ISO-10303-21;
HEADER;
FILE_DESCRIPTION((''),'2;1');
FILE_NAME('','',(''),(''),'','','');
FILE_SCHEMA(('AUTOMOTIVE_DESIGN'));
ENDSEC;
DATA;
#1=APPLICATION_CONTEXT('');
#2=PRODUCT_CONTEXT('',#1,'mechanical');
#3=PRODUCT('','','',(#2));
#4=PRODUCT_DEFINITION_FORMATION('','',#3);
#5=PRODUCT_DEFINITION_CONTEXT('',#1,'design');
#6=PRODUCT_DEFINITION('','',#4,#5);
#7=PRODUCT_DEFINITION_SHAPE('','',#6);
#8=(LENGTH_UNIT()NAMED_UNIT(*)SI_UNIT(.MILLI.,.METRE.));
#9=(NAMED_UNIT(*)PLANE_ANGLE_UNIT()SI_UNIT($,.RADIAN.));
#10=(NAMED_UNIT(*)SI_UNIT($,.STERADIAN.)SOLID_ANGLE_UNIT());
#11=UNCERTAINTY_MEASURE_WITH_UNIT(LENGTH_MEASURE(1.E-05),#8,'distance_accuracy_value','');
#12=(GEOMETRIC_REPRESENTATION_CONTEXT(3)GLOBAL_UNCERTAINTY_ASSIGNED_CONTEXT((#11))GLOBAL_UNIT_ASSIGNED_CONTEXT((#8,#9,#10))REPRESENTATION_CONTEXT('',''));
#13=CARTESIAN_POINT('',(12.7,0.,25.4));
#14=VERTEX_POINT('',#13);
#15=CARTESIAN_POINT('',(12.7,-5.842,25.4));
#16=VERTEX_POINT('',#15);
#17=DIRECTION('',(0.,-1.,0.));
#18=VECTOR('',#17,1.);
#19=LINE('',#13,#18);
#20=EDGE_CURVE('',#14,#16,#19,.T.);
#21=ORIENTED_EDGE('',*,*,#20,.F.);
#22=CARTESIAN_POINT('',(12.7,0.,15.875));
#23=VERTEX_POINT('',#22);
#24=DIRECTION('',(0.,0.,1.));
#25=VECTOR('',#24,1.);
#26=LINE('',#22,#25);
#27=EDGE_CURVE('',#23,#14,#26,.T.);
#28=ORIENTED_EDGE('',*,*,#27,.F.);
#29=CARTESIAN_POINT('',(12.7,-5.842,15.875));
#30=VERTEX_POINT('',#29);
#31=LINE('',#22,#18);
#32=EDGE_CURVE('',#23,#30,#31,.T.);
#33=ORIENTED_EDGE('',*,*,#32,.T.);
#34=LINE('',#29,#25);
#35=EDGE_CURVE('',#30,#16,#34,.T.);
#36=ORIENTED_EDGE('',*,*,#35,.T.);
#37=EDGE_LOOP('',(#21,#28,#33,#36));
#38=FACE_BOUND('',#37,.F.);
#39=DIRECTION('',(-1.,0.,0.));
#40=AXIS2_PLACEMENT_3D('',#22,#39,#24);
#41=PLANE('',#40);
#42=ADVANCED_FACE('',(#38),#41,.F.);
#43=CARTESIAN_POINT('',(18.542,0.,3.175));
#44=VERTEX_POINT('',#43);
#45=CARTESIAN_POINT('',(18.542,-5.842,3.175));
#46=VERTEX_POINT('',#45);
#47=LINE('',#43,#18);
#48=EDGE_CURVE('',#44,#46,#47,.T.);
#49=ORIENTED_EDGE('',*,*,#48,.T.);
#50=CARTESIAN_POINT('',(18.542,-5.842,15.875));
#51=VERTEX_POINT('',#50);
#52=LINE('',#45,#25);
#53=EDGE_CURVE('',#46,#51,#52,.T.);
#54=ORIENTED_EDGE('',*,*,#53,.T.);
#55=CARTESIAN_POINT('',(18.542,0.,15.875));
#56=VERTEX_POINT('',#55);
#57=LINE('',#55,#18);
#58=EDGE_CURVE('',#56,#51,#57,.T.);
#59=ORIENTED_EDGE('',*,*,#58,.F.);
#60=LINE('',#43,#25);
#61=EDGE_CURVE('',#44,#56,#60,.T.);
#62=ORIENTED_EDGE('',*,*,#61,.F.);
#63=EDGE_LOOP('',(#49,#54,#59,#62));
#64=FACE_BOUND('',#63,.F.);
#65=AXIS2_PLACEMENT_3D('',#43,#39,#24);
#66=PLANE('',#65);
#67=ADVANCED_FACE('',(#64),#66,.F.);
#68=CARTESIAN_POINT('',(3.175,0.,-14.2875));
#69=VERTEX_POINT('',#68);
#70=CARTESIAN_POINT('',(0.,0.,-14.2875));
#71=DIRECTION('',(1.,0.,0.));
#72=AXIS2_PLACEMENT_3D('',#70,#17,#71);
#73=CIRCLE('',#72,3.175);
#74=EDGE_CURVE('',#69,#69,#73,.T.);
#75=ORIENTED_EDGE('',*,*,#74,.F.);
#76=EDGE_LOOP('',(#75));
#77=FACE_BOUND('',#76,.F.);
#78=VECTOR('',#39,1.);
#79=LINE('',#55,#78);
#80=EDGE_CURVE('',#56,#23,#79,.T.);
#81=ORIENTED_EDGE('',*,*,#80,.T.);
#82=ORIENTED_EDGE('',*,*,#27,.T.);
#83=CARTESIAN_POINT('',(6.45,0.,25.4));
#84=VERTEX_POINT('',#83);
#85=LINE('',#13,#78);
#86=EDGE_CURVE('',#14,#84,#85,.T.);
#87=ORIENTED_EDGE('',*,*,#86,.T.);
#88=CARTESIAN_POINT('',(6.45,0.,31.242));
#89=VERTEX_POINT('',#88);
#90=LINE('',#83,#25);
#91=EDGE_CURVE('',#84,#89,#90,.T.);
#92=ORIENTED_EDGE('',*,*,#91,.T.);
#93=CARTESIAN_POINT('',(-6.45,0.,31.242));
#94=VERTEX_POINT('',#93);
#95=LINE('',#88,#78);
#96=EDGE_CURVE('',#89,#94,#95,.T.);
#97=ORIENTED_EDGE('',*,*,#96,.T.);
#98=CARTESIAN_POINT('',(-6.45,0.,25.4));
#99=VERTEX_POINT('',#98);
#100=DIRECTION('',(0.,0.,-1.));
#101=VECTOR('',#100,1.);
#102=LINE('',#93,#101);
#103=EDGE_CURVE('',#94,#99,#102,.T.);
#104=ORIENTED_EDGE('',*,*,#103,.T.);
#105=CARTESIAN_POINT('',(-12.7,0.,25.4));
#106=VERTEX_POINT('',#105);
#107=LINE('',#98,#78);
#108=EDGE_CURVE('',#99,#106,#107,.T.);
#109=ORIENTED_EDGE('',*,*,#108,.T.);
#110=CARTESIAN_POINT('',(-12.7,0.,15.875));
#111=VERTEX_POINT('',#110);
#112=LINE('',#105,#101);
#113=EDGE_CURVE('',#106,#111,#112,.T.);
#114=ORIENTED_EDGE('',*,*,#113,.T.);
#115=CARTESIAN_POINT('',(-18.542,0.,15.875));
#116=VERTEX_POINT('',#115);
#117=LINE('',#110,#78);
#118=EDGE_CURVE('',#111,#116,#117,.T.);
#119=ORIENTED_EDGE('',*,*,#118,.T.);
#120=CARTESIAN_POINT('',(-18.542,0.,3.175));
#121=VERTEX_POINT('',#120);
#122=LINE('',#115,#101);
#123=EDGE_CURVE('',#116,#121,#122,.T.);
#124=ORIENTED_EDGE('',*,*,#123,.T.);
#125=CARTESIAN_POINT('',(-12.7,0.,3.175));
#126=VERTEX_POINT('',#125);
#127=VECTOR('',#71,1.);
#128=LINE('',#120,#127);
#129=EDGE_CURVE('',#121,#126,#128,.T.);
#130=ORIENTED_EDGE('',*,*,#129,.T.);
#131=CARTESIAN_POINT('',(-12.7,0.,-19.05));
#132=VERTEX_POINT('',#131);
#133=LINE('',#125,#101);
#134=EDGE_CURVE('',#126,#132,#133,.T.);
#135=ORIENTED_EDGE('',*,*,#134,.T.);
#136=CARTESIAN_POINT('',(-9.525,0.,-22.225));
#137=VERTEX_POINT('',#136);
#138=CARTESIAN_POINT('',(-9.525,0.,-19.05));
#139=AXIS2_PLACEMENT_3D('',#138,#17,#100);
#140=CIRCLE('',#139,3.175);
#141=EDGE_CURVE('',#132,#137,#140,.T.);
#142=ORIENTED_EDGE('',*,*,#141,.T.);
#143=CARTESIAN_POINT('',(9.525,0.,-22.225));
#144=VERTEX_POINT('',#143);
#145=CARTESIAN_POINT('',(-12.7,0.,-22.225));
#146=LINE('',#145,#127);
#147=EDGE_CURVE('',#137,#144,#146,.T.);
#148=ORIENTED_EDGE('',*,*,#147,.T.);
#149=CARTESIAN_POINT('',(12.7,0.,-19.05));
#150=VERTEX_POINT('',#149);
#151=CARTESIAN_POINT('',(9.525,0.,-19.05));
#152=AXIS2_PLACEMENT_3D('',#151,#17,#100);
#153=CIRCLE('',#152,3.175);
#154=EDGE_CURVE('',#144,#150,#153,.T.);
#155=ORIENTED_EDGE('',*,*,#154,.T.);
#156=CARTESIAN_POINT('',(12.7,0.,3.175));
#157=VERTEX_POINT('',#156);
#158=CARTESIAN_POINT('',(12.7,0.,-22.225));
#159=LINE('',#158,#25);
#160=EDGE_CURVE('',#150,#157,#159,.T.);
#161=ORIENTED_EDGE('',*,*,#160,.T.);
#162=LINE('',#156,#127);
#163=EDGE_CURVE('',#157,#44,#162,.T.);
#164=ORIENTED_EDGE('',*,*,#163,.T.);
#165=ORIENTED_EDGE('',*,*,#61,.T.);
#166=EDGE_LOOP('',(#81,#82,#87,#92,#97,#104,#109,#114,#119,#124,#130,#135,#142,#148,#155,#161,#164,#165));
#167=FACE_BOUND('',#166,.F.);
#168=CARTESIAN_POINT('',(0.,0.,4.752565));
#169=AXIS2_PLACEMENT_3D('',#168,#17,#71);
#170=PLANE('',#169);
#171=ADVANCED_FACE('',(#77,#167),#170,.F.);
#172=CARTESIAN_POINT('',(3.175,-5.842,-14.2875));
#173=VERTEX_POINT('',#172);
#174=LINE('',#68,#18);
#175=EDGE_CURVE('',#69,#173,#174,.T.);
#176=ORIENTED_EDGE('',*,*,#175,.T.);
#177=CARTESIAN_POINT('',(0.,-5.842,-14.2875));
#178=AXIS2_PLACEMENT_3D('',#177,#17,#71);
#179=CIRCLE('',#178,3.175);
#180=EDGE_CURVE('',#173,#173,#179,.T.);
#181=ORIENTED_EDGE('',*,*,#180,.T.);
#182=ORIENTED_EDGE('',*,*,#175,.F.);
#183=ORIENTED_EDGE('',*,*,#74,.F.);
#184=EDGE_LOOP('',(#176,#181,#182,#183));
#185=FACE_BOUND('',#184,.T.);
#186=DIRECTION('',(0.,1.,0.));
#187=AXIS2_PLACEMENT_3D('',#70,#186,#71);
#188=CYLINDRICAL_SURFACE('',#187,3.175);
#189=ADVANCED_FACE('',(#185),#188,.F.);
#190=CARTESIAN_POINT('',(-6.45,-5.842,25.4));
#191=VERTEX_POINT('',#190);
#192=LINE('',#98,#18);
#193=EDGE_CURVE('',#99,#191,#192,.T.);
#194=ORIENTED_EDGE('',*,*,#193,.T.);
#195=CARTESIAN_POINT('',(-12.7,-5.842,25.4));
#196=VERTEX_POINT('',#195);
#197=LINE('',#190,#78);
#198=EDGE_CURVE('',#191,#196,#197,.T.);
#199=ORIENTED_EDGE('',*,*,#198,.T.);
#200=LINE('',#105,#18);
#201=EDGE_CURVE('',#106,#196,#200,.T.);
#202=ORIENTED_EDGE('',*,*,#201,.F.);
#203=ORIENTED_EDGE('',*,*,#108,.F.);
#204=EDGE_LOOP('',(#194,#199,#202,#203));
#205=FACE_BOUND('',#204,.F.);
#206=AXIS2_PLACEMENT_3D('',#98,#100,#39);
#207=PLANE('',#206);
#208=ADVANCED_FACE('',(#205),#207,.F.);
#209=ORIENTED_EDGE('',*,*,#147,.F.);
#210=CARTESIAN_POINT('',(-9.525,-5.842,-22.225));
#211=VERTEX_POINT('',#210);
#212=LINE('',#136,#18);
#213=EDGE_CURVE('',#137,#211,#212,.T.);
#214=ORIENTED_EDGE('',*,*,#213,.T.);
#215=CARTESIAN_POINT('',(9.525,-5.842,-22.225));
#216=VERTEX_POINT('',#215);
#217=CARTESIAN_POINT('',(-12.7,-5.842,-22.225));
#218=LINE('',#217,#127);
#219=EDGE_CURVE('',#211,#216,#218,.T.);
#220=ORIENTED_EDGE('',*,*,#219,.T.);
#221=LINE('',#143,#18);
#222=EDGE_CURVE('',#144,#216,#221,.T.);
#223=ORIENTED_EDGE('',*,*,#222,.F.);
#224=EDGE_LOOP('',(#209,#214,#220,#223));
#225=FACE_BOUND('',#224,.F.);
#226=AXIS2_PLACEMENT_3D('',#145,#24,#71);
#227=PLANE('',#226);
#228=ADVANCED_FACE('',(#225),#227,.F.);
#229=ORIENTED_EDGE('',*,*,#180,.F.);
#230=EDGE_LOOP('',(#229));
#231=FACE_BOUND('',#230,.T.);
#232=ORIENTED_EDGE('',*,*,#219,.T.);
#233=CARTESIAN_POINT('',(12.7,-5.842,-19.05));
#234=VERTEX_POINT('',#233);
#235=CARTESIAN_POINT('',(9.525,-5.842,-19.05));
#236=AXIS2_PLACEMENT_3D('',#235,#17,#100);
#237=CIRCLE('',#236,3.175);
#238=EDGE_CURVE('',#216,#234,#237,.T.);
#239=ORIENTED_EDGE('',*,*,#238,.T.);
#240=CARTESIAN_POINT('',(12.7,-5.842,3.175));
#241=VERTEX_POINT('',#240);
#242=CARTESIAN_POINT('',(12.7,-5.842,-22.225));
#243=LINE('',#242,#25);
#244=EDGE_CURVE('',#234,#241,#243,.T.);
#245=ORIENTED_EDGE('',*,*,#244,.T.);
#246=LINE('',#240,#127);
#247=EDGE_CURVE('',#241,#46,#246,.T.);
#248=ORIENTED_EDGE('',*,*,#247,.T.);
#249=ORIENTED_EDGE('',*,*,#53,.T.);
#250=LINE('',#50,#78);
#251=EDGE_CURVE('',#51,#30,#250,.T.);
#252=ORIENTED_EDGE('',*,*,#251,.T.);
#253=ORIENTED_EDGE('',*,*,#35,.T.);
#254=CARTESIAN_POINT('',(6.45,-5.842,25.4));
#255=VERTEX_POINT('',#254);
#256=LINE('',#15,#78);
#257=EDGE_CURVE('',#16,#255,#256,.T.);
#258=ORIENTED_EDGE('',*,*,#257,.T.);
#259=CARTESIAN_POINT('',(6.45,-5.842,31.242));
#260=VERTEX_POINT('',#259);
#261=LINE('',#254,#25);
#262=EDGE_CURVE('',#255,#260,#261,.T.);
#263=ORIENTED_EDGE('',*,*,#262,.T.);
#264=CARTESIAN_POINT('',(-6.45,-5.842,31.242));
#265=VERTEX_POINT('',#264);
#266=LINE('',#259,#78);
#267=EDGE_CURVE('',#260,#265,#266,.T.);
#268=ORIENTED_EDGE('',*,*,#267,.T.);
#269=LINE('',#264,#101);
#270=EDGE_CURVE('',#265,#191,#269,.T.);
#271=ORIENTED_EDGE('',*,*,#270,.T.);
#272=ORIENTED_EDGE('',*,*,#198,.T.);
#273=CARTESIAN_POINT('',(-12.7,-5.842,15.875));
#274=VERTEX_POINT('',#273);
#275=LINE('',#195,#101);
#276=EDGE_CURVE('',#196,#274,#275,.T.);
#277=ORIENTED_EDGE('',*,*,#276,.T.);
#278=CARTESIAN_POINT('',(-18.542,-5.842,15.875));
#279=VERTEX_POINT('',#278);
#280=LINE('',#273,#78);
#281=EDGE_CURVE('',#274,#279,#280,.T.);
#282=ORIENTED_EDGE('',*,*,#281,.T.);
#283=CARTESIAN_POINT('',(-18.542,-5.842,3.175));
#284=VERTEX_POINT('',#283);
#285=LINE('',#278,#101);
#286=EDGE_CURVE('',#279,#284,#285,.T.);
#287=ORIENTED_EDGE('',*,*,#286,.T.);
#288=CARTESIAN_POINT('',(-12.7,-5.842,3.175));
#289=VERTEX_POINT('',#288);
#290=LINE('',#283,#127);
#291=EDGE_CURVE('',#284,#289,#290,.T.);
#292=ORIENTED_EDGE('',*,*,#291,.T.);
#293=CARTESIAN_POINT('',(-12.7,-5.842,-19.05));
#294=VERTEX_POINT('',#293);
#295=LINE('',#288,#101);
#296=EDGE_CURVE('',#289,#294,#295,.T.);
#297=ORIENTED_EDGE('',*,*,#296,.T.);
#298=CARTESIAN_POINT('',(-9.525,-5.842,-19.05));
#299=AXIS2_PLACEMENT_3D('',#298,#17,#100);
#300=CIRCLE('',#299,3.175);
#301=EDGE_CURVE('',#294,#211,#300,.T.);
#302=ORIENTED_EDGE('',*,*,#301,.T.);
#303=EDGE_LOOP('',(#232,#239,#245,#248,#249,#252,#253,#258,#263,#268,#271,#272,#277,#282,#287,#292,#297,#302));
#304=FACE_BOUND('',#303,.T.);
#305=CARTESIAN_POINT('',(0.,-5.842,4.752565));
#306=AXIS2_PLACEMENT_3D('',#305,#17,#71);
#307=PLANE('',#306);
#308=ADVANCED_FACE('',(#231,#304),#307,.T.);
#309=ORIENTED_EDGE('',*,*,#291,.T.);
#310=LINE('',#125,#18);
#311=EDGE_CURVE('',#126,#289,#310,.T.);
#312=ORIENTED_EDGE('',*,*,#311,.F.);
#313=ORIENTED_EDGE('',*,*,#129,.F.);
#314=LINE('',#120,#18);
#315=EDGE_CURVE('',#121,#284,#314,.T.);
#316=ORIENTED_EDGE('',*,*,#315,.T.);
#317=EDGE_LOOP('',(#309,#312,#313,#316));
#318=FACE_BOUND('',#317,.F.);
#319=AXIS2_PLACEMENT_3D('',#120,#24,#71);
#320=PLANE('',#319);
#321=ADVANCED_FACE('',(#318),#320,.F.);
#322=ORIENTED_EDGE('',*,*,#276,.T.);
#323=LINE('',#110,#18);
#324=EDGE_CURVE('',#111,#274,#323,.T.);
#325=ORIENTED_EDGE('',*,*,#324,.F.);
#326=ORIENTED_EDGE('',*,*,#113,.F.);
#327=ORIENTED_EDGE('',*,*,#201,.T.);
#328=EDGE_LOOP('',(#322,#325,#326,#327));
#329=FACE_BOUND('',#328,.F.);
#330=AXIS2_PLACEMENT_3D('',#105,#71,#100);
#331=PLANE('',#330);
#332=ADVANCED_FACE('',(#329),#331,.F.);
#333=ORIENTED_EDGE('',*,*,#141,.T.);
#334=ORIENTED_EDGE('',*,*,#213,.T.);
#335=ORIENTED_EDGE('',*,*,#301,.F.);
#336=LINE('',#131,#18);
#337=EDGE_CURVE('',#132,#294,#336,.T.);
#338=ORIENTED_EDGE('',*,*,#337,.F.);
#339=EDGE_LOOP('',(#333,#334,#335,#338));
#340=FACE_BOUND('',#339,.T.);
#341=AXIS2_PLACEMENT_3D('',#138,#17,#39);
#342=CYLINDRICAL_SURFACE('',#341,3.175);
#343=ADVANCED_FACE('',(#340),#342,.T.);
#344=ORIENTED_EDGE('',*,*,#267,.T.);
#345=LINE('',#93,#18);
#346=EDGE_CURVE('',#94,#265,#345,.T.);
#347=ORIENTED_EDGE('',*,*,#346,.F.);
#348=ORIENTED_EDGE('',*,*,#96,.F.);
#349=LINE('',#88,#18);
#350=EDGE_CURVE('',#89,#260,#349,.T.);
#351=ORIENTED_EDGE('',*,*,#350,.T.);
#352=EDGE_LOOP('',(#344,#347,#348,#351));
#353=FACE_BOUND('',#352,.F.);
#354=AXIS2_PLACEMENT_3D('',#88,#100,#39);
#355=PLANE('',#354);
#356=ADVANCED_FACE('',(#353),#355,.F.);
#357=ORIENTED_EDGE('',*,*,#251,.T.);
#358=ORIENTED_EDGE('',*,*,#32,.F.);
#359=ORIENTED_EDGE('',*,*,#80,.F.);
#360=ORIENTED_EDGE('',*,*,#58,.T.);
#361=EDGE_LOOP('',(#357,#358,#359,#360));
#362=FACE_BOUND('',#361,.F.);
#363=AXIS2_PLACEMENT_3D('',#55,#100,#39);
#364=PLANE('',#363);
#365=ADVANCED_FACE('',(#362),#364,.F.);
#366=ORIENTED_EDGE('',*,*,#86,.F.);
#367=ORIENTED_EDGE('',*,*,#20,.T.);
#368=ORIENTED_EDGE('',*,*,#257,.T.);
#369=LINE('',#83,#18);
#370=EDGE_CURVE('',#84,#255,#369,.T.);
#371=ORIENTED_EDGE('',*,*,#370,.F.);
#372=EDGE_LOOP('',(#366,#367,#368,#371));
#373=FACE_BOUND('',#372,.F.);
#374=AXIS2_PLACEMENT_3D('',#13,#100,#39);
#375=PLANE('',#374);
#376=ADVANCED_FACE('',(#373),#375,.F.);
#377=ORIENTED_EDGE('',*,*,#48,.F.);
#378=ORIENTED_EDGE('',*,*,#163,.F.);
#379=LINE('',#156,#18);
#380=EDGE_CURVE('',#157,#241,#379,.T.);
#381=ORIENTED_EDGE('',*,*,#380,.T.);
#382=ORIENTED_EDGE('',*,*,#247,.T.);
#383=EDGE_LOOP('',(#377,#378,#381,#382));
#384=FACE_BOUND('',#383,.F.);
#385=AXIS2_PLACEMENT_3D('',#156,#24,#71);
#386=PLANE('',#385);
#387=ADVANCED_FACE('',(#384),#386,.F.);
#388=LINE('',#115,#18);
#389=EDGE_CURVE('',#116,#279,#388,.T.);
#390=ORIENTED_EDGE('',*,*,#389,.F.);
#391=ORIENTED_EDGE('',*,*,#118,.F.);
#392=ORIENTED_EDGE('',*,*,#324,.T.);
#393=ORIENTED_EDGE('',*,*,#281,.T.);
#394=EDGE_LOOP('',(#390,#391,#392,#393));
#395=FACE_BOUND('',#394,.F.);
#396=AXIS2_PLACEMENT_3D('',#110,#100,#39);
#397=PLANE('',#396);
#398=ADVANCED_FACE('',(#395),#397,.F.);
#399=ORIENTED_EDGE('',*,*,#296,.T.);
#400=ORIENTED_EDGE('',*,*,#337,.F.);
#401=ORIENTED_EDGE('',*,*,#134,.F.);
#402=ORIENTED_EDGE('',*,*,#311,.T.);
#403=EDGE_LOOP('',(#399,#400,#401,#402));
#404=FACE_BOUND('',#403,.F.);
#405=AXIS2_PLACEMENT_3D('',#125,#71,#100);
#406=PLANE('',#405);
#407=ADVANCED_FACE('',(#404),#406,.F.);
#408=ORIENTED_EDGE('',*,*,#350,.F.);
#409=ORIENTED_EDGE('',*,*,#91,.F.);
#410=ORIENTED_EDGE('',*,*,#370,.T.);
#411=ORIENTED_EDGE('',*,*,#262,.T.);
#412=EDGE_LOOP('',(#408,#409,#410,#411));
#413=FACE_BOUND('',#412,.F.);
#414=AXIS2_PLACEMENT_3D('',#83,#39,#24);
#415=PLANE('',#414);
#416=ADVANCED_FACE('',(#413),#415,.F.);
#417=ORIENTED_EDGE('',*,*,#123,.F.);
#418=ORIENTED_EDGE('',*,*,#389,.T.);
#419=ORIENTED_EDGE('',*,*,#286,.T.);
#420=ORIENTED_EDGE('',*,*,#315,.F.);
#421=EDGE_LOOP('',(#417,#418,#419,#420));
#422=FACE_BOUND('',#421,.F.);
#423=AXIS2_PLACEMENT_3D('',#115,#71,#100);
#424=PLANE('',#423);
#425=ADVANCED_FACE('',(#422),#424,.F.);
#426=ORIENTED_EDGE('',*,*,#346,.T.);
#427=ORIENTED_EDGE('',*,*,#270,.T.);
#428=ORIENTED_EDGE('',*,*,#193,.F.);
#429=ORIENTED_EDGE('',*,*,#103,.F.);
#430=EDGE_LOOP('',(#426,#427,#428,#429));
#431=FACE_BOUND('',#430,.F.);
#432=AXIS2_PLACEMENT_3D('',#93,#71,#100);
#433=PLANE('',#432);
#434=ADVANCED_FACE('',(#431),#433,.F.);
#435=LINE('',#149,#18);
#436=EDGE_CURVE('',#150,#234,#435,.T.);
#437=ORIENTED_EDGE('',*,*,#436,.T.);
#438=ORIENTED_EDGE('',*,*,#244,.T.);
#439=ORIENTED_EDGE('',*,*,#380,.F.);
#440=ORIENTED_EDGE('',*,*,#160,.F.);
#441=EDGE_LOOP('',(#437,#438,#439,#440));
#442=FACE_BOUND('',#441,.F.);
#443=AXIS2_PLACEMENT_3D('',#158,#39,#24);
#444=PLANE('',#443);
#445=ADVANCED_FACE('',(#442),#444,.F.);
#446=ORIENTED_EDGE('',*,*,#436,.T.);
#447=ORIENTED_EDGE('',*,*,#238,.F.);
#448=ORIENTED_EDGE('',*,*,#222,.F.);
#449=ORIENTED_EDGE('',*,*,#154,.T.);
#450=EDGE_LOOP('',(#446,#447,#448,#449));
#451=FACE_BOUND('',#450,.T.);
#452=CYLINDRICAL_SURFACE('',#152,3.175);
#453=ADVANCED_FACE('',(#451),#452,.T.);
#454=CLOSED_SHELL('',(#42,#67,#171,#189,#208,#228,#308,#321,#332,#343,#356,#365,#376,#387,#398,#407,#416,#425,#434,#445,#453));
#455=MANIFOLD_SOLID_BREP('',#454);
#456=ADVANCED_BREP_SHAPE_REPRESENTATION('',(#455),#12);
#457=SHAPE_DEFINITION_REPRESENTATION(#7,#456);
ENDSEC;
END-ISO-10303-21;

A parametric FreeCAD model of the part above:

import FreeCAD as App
import Part
import Sketcher

V = App.Vector
Q = App.Units.Quantity


def edges_at(feature, points):
    """Names of the edges that pass closest to the given points."""
    edges = feature.Shape.Edges
    near = lambda p: min(range(len(edges)), key=lambda i: edges[i].distToShape(Part.Vertex(*p))[0])
    return sorted({f"Edge{near(p) + 1}" for p in points})

doc = App.newDocument("Part")
body = doc.addObject("PartDesign::Body", "Body")

sketch1 = doc.addObject("Sketcher::SketchObject", "Sketch")
body.addObject(sketch1)
sketch1.AttachmentSupport = (doc.XZ_Plane, [""])
sketch1.MapMode = "FlatFace"
sketch1.addGeometry([
    Part.LineSegment(V(-6.5, 25.4, 0), V(-12.7, 25.4, 0)),
    Part.LineSegment(V(-12.7, 25.4, 0), V(-12.7, 15.9, 0)),
    Part.LineSegment(V(-12.7, 15.9, 0), V(-18.5, 15.9, 0)),
    Part.LineSegment(V(-18.5, 15.9, 0), V(-18.5, 3.2, 0)),
    Part.LineSegment(V(-18.5, 3.2, 0), V(-12.7, 3.2, 0)),
    Part.LineSegment(V(-12.7, 3.2, 0), V(-12.7, -22.2, 0)),
    Part.LineSegment(V(-12.7, -22.2, 0), V(12.7, -22.2, 0)),
    Part.LineSegment(V(12.7, -22.2, 0), V(12.7, 3.2, 0)),
    Part.LineSegment(V(12.7, 3.2, 0), V(18.5, 3.2, 0)),
    Part.LineSegment(V(18.5, 3.2, 0), V(18.5, 15.9, 0)),
    Part.LineSegment(V(18.5, 15.9, 0), V(12.7, 15.9, 0)),
    Part.LineSegment(V(12.7, 15.9, 0), V(12.7, 25.4, 0)),
    Part.LineSegment(V(12.7, 25.4, 0), V(6.5, 25.4, 0)),
    Part.LineSegment(V(6.5, 25.4, 0), V(6.5, 31.2, 0)),
    Part.LineSegment(V(6.5, 31.2, 0), V(-6.5, 31.2, 0)),
    Part.LineSegment(V(-6.5, 31.2, 0), V(-6.5, 25.4, 0)),
    Part.Circle(V(0, -14.3, 0), V(0, 0, 1), 3.2),
], False)
sketch1.addConstraint([
    Sketcher.Constraint("Coincident", 0, 2, 1, 1),
    Sketcher.Constraint("Coincident", 1, 2, 2, 1),
    Sketcher.Constraint("Coincident", 2, 2, 3, 1),
    Sketcher.Constraint("Coincident", 3, 2, 4, 1),
    Sketcher.Constraint("Coincident", 4, 2, 5, 1),
    Sketcher.Constraint("Coincident", 5, 2, 6, 1),
    Sketcher.Constraint("Coincident", 6, 2, 7, 1),
    Sketcher.Constraint("Coincident", 7, 2, 8, 1),
    Sketcher.Constraint("Coincident", 8, 2, 9, 1),
    Sketcher.Constraint("Coincident", 9, 2, 10, 1),
    Sketcher.Constraint("Coincident", 10, 2, 11, 1),
    Sketcher.Constraint("Coincident", 11, 2, 12, 1),
    Sketcher.Constraint("Coincident", 12, 2, 13, 1),
    Sketcher.Constraint("Coincident", 13, 2, 14, 1),
    Sketcher.Constraint("Coincident", 14, 2, 15, 1),
    Sketcher.Constraint("Coincident", 15, 2, 0, 1),
    Sketcher.Constraint("Horizontal", 0),
    Sketcher.Constraint("Vertical", 1),
    Sketcher.Constraint("Horizontal", 2),
    Sketcher.Constraint("Vertical", 3),
    Sketcher.Constraint("Horizontal", 4),
    Sketcher.Constraint("Vertical", 5),
    Sketcher.Constraint("Horizontal", 6),
    Sketcher.Constraint("Vertical", 7),
    Sketcher.Constraint("Horizontal", 8),
    Sketcher.Constraint("Vertical", 9),
    Sketcher.Constraint("Horizontal", 10),
    Sketcher.Constraint("Vertical", 11),
    Sketcher.Constraint("Horizontal", 12),
    Sketcher.Constraint("Vertical", 13),
    Sketcher.Constraint("Horizontal", 14),
    Sketcher.Constraint("Vertical", 15),
    Sketcher.Constraint("Symmetric", 4, 2, 7, 2, -2),
    Sketcher.Constraint("Symmetric", 2, 2, 9, 2, -2),
    Sketcher.Constraint("Symmetric", 0, 2, 11, 2, -2),
    Sketcher.Constraint("PointOnObject", 16, 3, -2),
    Sketcher.Constraint("Vertical", 1, 2, 4, 2),
    Sketcher.Constraint("Equal", 0, 12),
    Sketcher.Constraint("Equal", 6, 5),
    Sketcher.Constraint("Equal", 10, 13),
    Sketcher.Constraint("Diameter", 16, Q("0.25 in")),
    Sketcher.Constraint("DistanceX", 6, 1, 6, 2, Q("1 in")),
    Sketcher.Constraint("DistanceY", 3, 2, 3, 1, Q("0.5 in")),
    Sketcher.Constraint("DistanceY", -1, 1, 0, 2, Q("1 in")),
    Sketcher.Constraint("DistanceX", 2, 2, 2, 1, Q("0.23 in")),
    Sketcher.Constraint("DistanceY", 1, 2, 1, 1, Q("0.375 in")),
    Sketcher.Constraint("DistanceY", 16, 3, -1, 1, Q("0.5625 in")),
    Sketcher.Constraint("DistanceX", 0, 2, 0, 1, 6.25),
])
pad1 = doc.addObject("PartDesign::Pad", "Pad")
body.addObject(pad1)
pad1.Profile = sketch1
pad1.Length = Q("0.23 in")
doc.recompute()

fillet = doc.addObject("PartDesign::Fillet", "Fillet")
body.addObject(fillet)
fillet.Base = (pad1, edges_at(pad1, [(-12.7, -2.921, -22.225), (12.7, -2.921, -22.225)]))
fillet.Radius = Q("0.125 in")

doc.recompute()
